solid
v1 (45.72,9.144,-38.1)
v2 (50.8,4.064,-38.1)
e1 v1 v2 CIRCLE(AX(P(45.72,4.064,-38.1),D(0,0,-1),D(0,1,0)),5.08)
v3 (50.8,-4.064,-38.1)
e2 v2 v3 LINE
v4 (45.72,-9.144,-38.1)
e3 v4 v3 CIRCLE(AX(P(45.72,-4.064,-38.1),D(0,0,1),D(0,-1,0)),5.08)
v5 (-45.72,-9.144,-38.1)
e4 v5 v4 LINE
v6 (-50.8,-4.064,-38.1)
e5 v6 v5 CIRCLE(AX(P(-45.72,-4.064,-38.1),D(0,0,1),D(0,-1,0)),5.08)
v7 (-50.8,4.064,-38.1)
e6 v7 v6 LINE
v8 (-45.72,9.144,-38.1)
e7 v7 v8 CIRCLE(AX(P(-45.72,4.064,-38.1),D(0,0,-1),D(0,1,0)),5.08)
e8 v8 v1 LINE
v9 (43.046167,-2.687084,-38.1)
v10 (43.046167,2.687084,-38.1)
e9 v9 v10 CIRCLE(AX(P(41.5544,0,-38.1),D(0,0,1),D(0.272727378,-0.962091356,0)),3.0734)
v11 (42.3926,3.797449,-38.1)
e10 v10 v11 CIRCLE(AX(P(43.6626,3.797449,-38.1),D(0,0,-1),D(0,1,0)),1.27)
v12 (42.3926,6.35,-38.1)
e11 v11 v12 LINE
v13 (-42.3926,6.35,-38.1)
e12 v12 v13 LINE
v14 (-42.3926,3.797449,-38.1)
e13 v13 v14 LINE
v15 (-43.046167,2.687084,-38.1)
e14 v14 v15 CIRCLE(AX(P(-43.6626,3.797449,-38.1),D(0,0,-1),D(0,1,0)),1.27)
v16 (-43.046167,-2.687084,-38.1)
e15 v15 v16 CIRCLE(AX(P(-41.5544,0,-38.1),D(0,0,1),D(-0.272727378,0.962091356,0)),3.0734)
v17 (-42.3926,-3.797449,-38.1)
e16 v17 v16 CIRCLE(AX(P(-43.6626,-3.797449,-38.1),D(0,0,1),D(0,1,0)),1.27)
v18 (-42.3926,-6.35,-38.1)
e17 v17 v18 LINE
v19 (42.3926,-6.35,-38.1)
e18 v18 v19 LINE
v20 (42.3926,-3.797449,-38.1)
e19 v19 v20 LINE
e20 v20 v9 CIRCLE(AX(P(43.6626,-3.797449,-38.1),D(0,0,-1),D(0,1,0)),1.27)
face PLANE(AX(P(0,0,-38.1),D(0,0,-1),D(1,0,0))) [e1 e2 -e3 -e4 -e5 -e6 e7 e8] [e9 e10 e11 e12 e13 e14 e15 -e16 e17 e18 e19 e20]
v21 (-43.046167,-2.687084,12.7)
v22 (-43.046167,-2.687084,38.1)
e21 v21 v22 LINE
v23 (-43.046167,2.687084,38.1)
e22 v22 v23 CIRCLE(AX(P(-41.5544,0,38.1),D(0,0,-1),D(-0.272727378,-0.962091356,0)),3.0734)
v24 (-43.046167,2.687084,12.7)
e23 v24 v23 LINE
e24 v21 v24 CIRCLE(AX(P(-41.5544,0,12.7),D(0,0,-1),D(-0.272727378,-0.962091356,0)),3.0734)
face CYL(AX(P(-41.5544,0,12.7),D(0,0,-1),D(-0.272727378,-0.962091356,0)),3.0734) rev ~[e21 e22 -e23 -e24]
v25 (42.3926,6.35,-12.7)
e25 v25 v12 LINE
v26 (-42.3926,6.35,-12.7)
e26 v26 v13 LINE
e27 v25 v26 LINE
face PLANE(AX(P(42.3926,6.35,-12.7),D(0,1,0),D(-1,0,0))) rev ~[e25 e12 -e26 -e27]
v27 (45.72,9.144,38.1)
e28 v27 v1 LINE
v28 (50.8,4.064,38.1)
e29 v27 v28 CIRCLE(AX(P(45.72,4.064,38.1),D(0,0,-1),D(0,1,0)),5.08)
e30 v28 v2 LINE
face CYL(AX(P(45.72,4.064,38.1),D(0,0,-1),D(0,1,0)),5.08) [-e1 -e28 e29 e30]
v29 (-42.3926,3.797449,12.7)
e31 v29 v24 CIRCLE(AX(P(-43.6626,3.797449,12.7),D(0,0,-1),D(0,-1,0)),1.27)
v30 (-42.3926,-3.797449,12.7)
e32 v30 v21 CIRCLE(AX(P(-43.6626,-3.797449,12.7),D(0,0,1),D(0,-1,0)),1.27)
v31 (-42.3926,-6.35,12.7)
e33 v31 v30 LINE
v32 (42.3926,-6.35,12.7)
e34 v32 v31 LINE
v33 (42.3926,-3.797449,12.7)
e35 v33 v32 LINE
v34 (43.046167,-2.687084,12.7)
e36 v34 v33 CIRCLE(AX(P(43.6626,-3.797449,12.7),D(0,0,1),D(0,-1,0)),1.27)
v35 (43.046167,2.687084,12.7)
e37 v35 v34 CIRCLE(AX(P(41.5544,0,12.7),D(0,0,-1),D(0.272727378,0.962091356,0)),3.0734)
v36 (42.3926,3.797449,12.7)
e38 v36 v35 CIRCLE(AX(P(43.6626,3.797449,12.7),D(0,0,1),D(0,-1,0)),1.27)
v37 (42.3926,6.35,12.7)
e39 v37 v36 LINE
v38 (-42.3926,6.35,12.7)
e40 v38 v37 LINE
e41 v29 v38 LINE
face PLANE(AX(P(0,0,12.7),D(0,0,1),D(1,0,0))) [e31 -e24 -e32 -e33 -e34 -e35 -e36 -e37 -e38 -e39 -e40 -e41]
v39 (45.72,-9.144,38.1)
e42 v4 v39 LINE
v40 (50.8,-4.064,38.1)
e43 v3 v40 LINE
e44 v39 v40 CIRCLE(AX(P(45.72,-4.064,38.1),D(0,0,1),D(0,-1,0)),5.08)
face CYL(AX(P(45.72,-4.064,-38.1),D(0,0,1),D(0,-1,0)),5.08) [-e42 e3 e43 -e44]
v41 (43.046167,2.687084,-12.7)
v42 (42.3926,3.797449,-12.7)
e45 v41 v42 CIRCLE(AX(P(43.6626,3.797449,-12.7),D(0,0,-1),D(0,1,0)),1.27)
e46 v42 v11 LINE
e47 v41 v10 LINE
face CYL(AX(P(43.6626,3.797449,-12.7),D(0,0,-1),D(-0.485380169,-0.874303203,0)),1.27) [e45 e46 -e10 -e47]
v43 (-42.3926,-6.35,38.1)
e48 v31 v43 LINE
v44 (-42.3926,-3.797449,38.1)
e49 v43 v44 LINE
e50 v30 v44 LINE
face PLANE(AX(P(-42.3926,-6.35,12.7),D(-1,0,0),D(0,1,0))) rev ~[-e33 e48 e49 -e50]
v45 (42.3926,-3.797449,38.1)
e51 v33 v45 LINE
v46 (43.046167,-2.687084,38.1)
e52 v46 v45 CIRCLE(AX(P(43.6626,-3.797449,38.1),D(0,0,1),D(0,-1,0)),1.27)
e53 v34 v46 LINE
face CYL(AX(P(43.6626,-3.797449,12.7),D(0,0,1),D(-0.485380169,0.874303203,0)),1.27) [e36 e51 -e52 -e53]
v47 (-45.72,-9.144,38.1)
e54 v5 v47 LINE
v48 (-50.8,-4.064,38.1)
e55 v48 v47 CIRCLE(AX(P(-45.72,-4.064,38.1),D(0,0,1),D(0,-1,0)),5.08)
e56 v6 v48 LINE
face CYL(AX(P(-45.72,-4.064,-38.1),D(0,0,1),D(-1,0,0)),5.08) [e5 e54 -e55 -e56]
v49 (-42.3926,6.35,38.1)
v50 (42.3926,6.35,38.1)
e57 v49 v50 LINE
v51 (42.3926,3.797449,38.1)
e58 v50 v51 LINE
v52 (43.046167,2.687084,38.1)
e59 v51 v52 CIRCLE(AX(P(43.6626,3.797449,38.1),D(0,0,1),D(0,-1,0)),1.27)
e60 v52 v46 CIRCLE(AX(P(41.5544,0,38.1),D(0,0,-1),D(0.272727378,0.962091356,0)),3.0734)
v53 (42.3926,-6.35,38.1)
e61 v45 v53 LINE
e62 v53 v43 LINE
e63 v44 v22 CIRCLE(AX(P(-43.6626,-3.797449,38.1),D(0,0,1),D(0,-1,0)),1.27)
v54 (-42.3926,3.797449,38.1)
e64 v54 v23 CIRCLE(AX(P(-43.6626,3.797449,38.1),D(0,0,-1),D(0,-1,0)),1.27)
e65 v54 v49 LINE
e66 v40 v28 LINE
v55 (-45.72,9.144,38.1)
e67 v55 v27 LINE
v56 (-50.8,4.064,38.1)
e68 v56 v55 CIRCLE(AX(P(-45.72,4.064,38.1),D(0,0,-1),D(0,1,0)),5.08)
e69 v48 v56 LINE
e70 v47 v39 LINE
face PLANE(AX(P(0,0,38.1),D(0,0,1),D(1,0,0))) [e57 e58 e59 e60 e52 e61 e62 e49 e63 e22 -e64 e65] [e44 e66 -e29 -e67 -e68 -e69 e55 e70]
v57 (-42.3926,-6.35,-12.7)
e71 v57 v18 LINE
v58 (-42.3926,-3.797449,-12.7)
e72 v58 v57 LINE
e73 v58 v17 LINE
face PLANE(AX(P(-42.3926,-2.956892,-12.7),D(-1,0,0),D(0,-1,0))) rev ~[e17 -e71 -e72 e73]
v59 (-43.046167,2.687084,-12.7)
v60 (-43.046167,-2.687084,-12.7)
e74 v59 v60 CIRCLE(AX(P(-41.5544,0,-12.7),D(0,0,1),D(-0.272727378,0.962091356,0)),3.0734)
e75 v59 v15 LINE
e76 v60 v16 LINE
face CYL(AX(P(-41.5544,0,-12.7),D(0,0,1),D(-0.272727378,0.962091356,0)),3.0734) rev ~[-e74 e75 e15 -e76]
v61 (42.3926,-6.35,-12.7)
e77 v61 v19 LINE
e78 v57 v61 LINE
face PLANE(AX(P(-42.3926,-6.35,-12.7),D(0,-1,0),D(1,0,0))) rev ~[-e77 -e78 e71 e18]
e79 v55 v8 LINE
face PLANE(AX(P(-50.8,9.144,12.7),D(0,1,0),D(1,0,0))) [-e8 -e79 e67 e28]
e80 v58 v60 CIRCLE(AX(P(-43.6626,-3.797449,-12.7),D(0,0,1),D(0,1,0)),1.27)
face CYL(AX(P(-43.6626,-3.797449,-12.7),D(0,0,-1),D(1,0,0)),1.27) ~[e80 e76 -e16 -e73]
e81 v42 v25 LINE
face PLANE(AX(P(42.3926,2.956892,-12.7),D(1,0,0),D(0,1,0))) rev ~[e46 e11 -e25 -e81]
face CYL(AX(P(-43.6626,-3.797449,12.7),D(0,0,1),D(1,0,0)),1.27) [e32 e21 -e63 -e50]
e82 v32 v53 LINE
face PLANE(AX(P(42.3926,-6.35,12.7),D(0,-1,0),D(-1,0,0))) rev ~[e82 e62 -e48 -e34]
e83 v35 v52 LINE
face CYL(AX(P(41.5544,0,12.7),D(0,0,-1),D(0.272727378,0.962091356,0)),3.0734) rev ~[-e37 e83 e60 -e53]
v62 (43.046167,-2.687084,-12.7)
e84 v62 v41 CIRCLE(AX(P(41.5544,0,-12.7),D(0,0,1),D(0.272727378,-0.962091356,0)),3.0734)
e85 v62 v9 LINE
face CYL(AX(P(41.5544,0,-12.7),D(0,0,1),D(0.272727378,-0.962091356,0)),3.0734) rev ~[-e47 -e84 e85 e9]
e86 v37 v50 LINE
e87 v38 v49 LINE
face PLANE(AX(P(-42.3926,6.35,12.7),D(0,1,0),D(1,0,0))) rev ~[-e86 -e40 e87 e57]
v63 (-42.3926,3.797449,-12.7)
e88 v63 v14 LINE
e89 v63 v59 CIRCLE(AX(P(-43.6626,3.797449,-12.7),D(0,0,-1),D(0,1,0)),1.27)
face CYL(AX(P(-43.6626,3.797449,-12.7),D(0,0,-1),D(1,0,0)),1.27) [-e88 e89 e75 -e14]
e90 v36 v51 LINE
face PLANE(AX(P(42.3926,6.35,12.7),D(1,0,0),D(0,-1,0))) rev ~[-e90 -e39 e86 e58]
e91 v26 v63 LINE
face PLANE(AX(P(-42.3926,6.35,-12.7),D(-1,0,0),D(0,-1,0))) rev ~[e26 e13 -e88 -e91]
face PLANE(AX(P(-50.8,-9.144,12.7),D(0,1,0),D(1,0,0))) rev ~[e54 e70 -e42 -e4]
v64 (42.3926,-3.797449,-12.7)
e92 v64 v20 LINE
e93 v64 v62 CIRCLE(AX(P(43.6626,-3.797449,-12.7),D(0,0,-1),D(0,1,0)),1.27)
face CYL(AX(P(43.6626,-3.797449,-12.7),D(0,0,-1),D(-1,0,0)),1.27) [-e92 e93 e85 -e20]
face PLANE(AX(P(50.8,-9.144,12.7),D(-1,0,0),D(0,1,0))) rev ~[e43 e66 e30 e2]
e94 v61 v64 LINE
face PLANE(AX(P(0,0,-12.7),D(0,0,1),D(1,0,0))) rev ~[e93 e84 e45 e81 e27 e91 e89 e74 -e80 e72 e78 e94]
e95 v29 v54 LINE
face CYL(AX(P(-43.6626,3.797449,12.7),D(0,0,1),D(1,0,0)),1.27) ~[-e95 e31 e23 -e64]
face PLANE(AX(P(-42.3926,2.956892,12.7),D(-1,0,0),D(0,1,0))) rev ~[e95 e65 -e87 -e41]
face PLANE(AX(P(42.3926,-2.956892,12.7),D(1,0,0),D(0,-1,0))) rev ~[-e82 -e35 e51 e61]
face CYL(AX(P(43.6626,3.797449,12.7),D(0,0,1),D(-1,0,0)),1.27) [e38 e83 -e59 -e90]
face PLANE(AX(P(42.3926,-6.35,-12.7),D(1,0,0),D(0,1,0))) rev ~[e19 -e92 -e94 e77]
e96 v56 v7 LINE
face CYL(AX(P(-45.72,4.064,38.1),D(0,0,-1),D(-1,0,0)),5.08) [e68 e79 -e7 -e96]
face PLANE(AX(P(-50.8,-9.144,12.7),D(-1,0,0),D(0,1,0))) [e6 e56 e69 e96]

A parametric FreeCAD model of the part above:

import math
import FreeCAD as App
import Part
import Sketcher
Q = App.Units.Quantity


def edges_at(feature, points):
    """Names of the edges that pass closest to the given points."""
    edges = feature.Shape.Edges
    near = lambda p: min(range(len(edges)), key=lambda i: edges[i].distToShape(Part.Vertex(*p))[0])
    return sorted({f"Edge{near(p) + 1}" for p in points})


def add_polygon(sketch, points):
    """Adds a closed chain of lines whose ends are joined by coincident constraints."""
    first, n = sketch.GeometryCount, len(points)
    for a, b in zip(points, points[1:] + points[:1]):
        sketch.addGeometry(Part.LineSegment(App.Vector(*a, 0), App.Vector(*b, 0)), False)
    for i in range(n):
        sketch.addConstraint(Sketcher.Constraint("Coincident", first + i, 2, first + (i + 1) % n, 1))

doc = App.newDocument("Part")
params = doc.addObject("Spreadsheet::Sheet", "Params")
for row, (alias, value) in enumerate([
    ("sketch1_width", "4 in"),
    ("sketch1_height", "0.72 in"),
    ("pad1_length", "1 in"),
    ("sketch2_width", "4 in"),
    ("sketch2_radius", "0.121 in"),
    ("sketch2_height", "0.72 in"),
    ("sketch2_width2", "3.338 in"),
    ("pad2_length", "1 in"),
    ("sketch3_width", "4 in"),
    ("sketch3_radius", "0.121 in"),
    ("sketch3_height", "0.72 in"),
    ("sketch3_width2", "3.338 in"),
    ("pad3_length", "1 in"),
    ("fillet_radius", "0.05 in"),
    ("fillet2_radius", "0.2 in"),
], start=1):
    params.set(f"A{row}", alias)
    params.set(f"B{row}", "=" + value)
    params.setAlias(f"B{row}", alias)

body = doc.addObject("PartDesign::Body", "Body")

sketch1 = doc.addObject("Sketcher::SketchObject", "Sketch")
body.addObject(sketch1)
sketch1.AttachmentSupport = (doc.XY_Plane, [""])
sketch1.MapMode = "FlatFace"
add_polygon(sketch1, [(-50.8, 9.144), (-50.8, -9.144), (50.8, -9.144), (50.8, 9.144)])
sketch1.addConstraint(Sketcher.Constraint("Vertical", 0))
sketch1.addConstraint(Sketcher.Constraint("Horizontal", 1))
sketch1.addConstraint(Sketcher.Constraint("Vertical", 2))
sketch1.addConstraint(Sketcher.Constraint("Horizontal", 3))
sketch1.addConstraint(Sketcher.Constraint("Symmetric", 0, 2, 2, 2, -1, 1))
sketch1.addConstraint(Sketcher.Constraint("DistanceX", 1, 1, 1, 2, Q("4 in")))
sketch1.addConstraint(Sketcher.Constraint("DistanceY", 0, 2, 0, 1, Q("0.72 in")))
sketch1.setExpression("Constraints[9]", "Params.sketch1_width")
sketch1.setExpression("Constraints[10]", "Params.sketch1_height")
pad1 = doc.addObject("PartDesign::Pad", "Pad")
body.addObject(pad1)
pad1.Profile = sketch1
pad1.setExpression("Length", "Params.pad1_length")
pad1.Midplane = True

sketch2 = doc.addObject("Sketcher::SketchObject", "Sketch001")
body.addObject(sketch2)
sketch2.AttachmentSupport = (doc.XY_Plane, [""])
sketch2.MapMode = "FlatFace"
sketch2.AttachmentOffset = App.Placement(App.Vector(0, 0, -0.5 * 25.4), App.Rotation())
add_polygon(sketch2, [(-50.8, -9.144), (-50.8, 9.144), (50.8, 9.144), (50.8, -9.144)])
sketch2.addGeometry(Part.ArcOfCircle(Part.Circle(App.Vector(-41.5544, 0, 0), App.Vector(0, 0, 1), 3.0734), math.radians(105.826626), math.radians(254.173374)), False)
sketch2.addGeometry(Part.LineSegment(App.Vector(-42.3926, -2.956892, 0), App.Vector(-42.3926, -6.35, 0)), False)
sketch2.addGeometry(Part.LineSegment(App.Vector(-42.3926, -6.35, 0), App.Vector(42.3926, -6.35, 0)), False)
sketch2.addGeometry(Part.LineSegment(App.Vector(42.3926, -6.35, 0), App.Vector(42.3926, -2.956892, 0)), False)
sketch2.addGeometry(Part.ArcOfCircle(Part.Circle(App.Vector(41.5544, 0, 0), App.Vector(0, 0, 1), 3.0734), math.radians(-74.173374), math.radians(74.173374)), False)
sketch2.addGeometry(Part.LineSegment(App.Vector(42.3926, 2.956892, 0), App.Vector(42.3926, 6.35, 0)), False)
sketch2.addGeometry(Part.LineSegment(App.Vector(42.3926, 6.35, 0), App.Vector(-42.3926, 6.35, 0)), False)
sketch2.addGeometry(Part.LineSegment(App.Vector(-42.3926, 6.35, 0), App.Vector(-42.3926, 2.956892, 0)), False)
sketch2.addConstraint(Sketcher.Constraint("Coincident", 4, 2, 5, 1))
sketch2.addConstraint(Sketcher.Constraint("Coincident", 5, 2, 6, 1))
sketch2.addConstraint(Sketcher.Constraint("Coincident", 6, 2, 7, 1))
sketch2.addConstraint(Sketcher.Constraint("Coincident", 7, 2, 8, 1))
sketch2.addConstraint(Sketcher.Constraint("Coincident", 8, 2, 9, 1))
sketch2.addConstraint(Sketcher.Constraint("Coincident", 9, 2, 10, 1))
sketch2.addConstraint(Sketcher.Constraint("Coincident", 10, 2, 11, 1))
sketch2.addConstraint(Sketcher.Constraint("Coincident", 11, 2, 4, 1))
sketch2.addConstraint(Sketcher.Constraint("Vertical", 0))
sketch2.addConstraint(Sketcher.Constraint("Horizontal", 1))
sketch2.addConstraint(Sketcher.Constraint("Vertical", 2))
sketch2.addConstraint(Sketcher.Constraint("Horizontal", 3))
sketch2.addConstraint(Sketcher.Constraint("Vertical", 5))
sketch2.addConstraint(Sketcher.Constraint("Horizontal", 6))
sketch2.addConstraint(Sketcher.Constraint("Vertical", 7))
sketch2.addConstraint(Sketcher.Constraint("Vertical", 9))
sketch2.addConstraint(Sketcher.Constraint("Horizontal", 10))
sketch2.addConstraint(Sketcher.Constraint("Vertical", 11))
sketch2.addConstraint(Sketcher.Constraint("Equal", 4, 8))
sketch2.addConstraint(Sketcher.Constraint("Symmetric", 4, 3, 8, 3, -1, 1))
sketch2.addConstraint(Sketcher.Constraint("Symmetric", 0, 2, 2, 2, -1, 1))
sketch2.addConstraint(Sketcher.Constraint("Symmetric", 5, 2, 9, 2, -1, 1))
sketch2.addConstraint(Sketcher.Constraint("Symmetric", 4, 2, 7, 2, -2))
sketch2.addConstraint(Sketcher.Constraint("Horizontal", 8, 2, 11, 2))
sketch2.addConstraint(Sketcher.Constraint("DistanceX", 1, 1, 1, 2, Q("4 in")))
sketch2.addConstraint(Sketcher.Constraint("Radius", 4, Q("0.121 in")))
sketch2.addConstraint(Sketcher.Constraint("DistanceY", 0, 1, 0, 2, Q("0.72 in")))
sketch2.addConstraint(Sketcher.Constraint("DistanceY", 6, 2, 9, 2, Q("0.5 in")))
sketch2.addConstraint(Sketcher.Constraint("DistanceX", 6, 1, 6, 2, Q("3.338 in")))
sketch2.addConstraint(Sketcher.Constraint("DistanceX", 4, 3, -1, 1, Q("1.636 in")))
sketch2.setExpression("Constraints[28]", "Params.sketch2_width")
sketch2.setExpression("Constraints[29]", "Params.sketch2_radius")
sketch2.setExpression("Constraints[30]", "Params.sketch2_height")
sketch2.setExpression("Constraints[32]", "Params.sketch2_width2")
pad2 = doc.addObject("PartDesign::Pad", "Pad001")
body.addObject(pad2)
pad2.Profile = sketch2
pad2.setExpression("Length", "Params.pad2_length")
pad2.Reversed = True

sketch3 = doc.addObject("Sketcher::SketchObject", "Sketch002")
body.addObject(sketch3)
sketch3.AttachmentSupport = (doc.XY_Plane, [""])
sketch3.MapMode = "FlatFace"
sketch3.AttachmentOffset = App.Placement(App.Vector(0, 0, 0.5 * 25.4), App.Rotation())
add_polygon(sketch3, [(-50.8, 9.144), (-50.8, -9.144), (50.8, -9.144), (50.8, 9.144)])
sketch3.addGeometry(Part.ArcOfCircle(Part.Circle(App.Vector(-41.5544, 0, 0), App.Vector(0, 0, 1), 3.0734), math.radians(105.826626), math.radians(254.173374)), False)
sketch3.addGeometry(Part.LineSegment(App.Vector(-42.3926, 2.956892, 0), App.Vector(-42.3926, 6.35, 0)), False)
sketch3.addGeometry(Part.LineSegment(App.Vector(-42.3926, 6.35, 0), App.Vector(42.3926, 6.35, 0)), False)
sketch3.addGeometry(Part.LineSegment(App.Vector(42.3926, 6.35, 0), App.Vector(42.3926, 2.956892, 0)), False)
sketch3.addGeometry(Part.ArcOfCircle(Part.Circle(App.Vector(41.5544, 0, 0), App.Vector(0, 0, 1), 3.0734), math.radians(-74.173374), math.radians(74.173374)), False)
sketch3.addGeometry(Part.LineSegment(App.Vector(42.3926, -2.956892, 0), App.Vector(42.3926, -6.35, 0)), False)
sketch3.addGeometry(Part.LineSegment(App.Vector(42.3926, -6.35, 0), App.Vector(-42.3926, -6.35, 0)), False)
sketch3.addGeometry(Part.LineSegment(App.Vector(-42.3926, -6.35, 0), App.Vector(-42.3926, -2.956892, 0)), False)
sketch3.addConstraint(Sketcher.Constraint("Coincident", 4, 1, 5, 1))
sketch3.addConstraint(Sketcher.Constraint("Coincident", 5, 2, 6, 1))
sketch3.addConstraint(Sketcher.Constraint("Coincident", 6, 2, 7, 1))
sketch3.addConstraint(Sketcher.Constraint("Coincident", 7, 2, 8, 2))
sketch3.addConstraint(Sketcher.Constraint("Coincident", 8, 1, 9, 1))
sketch3.addConstraint(Sketcher.Constraint("Coincident", 9, 2, 10, 1))
sketch3.addConstraint(Sketcher.Constraint("Coincident", 10, 2, 11, 1))
sketch3.addConstraint(Sketcher.Constraint("Coincident", 11, 2, 4, 2))
sketch3.addConstraint(Sketcher.Constraint("Vertical", 0))
sketch3.addConstraint(Sketcher.Constraint("Horizontal", 1))
sketch3.addConstraint(Sketcher.Constraint("Vertical", 2))
sketch3.addConstraint(Sketcher.Constraint("Horizontal", 3))
sketch3.addConstraint(Sketcher.Constraint("Vertical", 5))
sketch3.addConstraint(Sketcher.Constraint("Horizontal", 6))
sketch3.addConstraint(Sketcher.Constraint("Vertical", 7))
sketch3.addConstraint(Sketcher.Constraint("Vertical", 9))
sketch3.addConstraint(Sketcher.Constraint("Horizontal", 10))
sketch3.addConstraint(Sketcher.Constraint("Vertical", 11))
sketch3.addConstraint(Sketcher.Constraint("Equal", 4, 8))
sketch3.addConstraint(Sketcher.Constraint("Symmetric", 4, 3, 8, 3, -1, 1))
sketch3.addConstraint(Sketcher.Constraint("Symmetric", 0, 2, 2, 2, -1, 1))
sketch3.addConstraint(Sketcher.Constraint("Symmetric", 5, 2, 9, 2, -1, 1))
sketch3.addConstraint(Sketcher.Constraint("Symmetric", 4, 1, 7, 2, -2))
sketch3.addConstraint(Sketcher.Constraint("Horizontal", 8, 1, 11, 2))
sketch3.addConstraint(Sketcher.Constraint("DistanceX", 1, 1, 1, 2, Q("4 in")))
sketch3.addConstraint(Sketcher.Constraint("Radius", 4, Q("0.121 in")))
sketch3.addConstraint(Sketcher.Constraint("DistanceY", 0, 2, 0, 1, Q("0.72 in")))
sketch3.addConstraint(Sketcher.Constraint("DistanceY", 9, 2, 6, 2, Q("0.5 in")))
sketch3.addConstraint(Sketcher.Constraint("DistanceX", 6, 1, 6, 2, Q("3.338 in")))
sketch3.addConstraint(Sketcher.Constraint("DistanceX", 4, 3, -1, 1, Q("1.636 in")))
sketch3.setExpression("Constraints[28]", "Params.sketch3_width")
sketch3.setExpression("Constraints[29]", "Params.sketch3_radius")
sketch3.setExpression("Constraints[30]", "Params.sketch3_height")
sketch3.setExpression("Constraints[32]", "Params.sketch3_width2")
pad3 = doc.addObject("PartDesign::Pad", "Pad002")
body.addObject(pad3)
pad3.Profile = sketch3
pad3.setExpression("Length", "Params.pad3_length")
doc.recompute()

fillet = doc.addObject("PartDesign::Fillet", "Fillet")
body.addObject(fillet)
fillet.Base = (pad3, edges_at(pad3, [
    (-42.393, -2.957, -25.4),
    (-42.393, 2.957, -25.4),
    (42.393, -2.957, -25.4),
    (42.393, 2.957, -25.4),
    (42.393, -2.957, 25.4),
    (42.393, 2.957, 25.4),
    (-42.393, -2.957, 25.4),
    (-42.393, 2.957, 25.4),
]))
fillet.setExpression("Radius", "Params.fillet_radius")
doc.recompute()

fillet2 = doc.addObject("PartDesign::Fillet", "Fillet001")
body.addObject(fillet2)
fillet2.Base = (fillet, edges_at(fillet, [
    (50.8, -9.144, 0),
    (50.8, 9.144, 0),
    (-50.8, -9.144, 0),
    (-50.8, 9.144, 0),
]))
fillet2.setExpression("Radius", "Params.fillet2_radius")

doc.recompute()
